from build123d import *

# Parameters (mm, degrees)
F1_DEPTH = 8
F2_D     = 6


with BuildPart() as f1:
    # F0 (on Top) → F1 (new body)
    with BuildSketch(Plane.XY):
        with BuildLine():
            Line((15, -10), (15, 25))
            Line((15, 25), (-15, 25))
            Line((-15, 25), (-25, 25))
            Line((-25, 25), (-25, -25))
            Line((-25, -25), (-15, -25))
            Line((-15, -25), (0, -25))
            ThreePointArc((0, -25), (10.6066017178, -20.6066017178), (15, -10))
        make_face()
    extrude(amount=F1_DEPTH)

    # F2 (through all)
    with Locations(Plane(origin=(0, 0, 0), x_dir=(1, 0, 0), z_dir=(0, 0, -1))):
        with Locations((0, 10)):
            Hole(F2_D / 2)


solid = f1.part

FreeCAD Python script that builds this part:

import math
import FreeCAD as App
import Part
import Sketcher
from FreeCAD import Vector

doc = App.newDocument("Part")
params = doc.addObject("Spreadsheet::Sheet", "Params")
for row, (alias, value) in enumerate([
    ("sketch1_radius", "15 mm"),
    ("sketch1_width", "40 mm"),
    ("sketch1_height", "35 mm"),
    ("pad1_length", "8 mm"),
    ("sketch2_diameter", "6 mm"),
    ("hole_diameter", "6 mm"),
], start=1):
    params.set(f"A{row}", alias)
    params.set(f"B{row}", "=" + value)
    params.setAlias(f"B{row}", alias)

body = doc.addObject("PartDesign::Body", "Body")

sketch1 = body.newObject("Sketcher::SketchObject", "Sketch")
sketch1.AttachmentSupport = (doc.getObject("XY_Plane"), [""])
sketch1.MapMode = "FlatFace"
sketch1.addGeometry(Part.LineSegment(Vector(15, -10, 0), Vector(15, 25, 0)), False)
sketch1.addGeometry(Part.LineSegment(Vector(15, 25, 0), Vector(-25, 25, 0)), False)
sketch1.addGeometry(Part.LineSegment(Vector(-25, 25, 0), Vector(-25, -25, 0)), False)
sketch1.addGeometry(Part.LineSegment(Vector(-25, -25, 0), Vector(0, -25, 0)), False)
sketch1.addGeometry(Part.ArcOfCircle(Part.Circle(Vector(0, -10, 0), Vector(0, 0, 1), 15), math.radians(-90), math.radians(0)), False)
sketch1.addConstraint(Sketcher.Constraint("Coincident", 0, 2, 1, 1))
sketch1.addConstraint(Sketcher.Constraint("Coincident", 1, 2, 2, 1))
sketch1.addConstraint(Sketcher.Constraint("Coincident", 2, 2, 3, 1))
sketch1.addConstraint(Sketcher.Constraint("Tangent", 3, 2, 4, 1))
sketch1.addConstraint(Sketcher.Constraint("Tangent", 4, 2, 0, 1))
sketch1.addConstraint(Sketcher.Constraint("Vertical", 0))
sketch1.addConstraint(Sketcher.Constraint("Horizontal", 1))
sketch1.addConstraint(Sketcher.Constraint("Vertical", 2))
sketch1.addConstraint(Sketcher.Constraint("Horizontal", 3))
sketch1.addConstraint(Sketcher.Constraint("PointOnObject", 4, 3, -2))
sketch1.addConstraint(Sketcher.Constraint("Radius", 4, 15.0))
sketch1.addConstraint(Sketcher.Constraint("DistanceX", 1, 2, 1, 1, 40.0))
sketch1.addConstraint(Sketcher.Constraint("DistanceY", 0, 1, 0, 2, 35.0))
sketch1.addConstraint(Sketcher.Constraint("DistanceY", 4, 3, -1, 1, 10.0))
sketch1.setExpression("Constraints[10]", "Params.sketch1_radius")
sketch1.setExpression("Constraints[11]", "Params.sketch1_width")
sketch1.setExpression("Constraints[12]", "Params.sketch1_height")
pad1 = body.newObject("PartDesign::Pad", "Pad")
pad1.Profile = sketch1
pad1.setExpression("Length", "Params.pad1_length")

sketch2 = body.newObject("Sketcher::SketchObject", "Sketch001")
sketch2.AttachmentSupport = (doc.getObject("XY_Plane"), [""])
sketch2.MapMode = "FlatFace"
sketch2.addGeometry(Part.Circle(Vector(0, -10, 0), Vector(0, 0, 1), 3), False)
sketch2.addConstraint(Sketcher.Constraint("PointOnObject", 0, 3, -2))
sketch2.addConstraint(Sketcher.Constraint("Diameter", 0, 6.0))
sketch2.addConstraint(Sketcher.Constraint("DistanceY", 0, 3, -1, 1, 10.0))
sketch2.setExpression("Constraints[1]", "Params.sketch2_diameter")
doc.recompute()
hole = body.newObject("PartDesign::Hole", "Hole")
hole.Profile = sketch2
hole.ThreadType = "None"
hole.setExpression("Diameter", "Params.hole_diameter")
hole.DepthType = "ThroughAll"
hole.Reversed = True

doc.recompute()
